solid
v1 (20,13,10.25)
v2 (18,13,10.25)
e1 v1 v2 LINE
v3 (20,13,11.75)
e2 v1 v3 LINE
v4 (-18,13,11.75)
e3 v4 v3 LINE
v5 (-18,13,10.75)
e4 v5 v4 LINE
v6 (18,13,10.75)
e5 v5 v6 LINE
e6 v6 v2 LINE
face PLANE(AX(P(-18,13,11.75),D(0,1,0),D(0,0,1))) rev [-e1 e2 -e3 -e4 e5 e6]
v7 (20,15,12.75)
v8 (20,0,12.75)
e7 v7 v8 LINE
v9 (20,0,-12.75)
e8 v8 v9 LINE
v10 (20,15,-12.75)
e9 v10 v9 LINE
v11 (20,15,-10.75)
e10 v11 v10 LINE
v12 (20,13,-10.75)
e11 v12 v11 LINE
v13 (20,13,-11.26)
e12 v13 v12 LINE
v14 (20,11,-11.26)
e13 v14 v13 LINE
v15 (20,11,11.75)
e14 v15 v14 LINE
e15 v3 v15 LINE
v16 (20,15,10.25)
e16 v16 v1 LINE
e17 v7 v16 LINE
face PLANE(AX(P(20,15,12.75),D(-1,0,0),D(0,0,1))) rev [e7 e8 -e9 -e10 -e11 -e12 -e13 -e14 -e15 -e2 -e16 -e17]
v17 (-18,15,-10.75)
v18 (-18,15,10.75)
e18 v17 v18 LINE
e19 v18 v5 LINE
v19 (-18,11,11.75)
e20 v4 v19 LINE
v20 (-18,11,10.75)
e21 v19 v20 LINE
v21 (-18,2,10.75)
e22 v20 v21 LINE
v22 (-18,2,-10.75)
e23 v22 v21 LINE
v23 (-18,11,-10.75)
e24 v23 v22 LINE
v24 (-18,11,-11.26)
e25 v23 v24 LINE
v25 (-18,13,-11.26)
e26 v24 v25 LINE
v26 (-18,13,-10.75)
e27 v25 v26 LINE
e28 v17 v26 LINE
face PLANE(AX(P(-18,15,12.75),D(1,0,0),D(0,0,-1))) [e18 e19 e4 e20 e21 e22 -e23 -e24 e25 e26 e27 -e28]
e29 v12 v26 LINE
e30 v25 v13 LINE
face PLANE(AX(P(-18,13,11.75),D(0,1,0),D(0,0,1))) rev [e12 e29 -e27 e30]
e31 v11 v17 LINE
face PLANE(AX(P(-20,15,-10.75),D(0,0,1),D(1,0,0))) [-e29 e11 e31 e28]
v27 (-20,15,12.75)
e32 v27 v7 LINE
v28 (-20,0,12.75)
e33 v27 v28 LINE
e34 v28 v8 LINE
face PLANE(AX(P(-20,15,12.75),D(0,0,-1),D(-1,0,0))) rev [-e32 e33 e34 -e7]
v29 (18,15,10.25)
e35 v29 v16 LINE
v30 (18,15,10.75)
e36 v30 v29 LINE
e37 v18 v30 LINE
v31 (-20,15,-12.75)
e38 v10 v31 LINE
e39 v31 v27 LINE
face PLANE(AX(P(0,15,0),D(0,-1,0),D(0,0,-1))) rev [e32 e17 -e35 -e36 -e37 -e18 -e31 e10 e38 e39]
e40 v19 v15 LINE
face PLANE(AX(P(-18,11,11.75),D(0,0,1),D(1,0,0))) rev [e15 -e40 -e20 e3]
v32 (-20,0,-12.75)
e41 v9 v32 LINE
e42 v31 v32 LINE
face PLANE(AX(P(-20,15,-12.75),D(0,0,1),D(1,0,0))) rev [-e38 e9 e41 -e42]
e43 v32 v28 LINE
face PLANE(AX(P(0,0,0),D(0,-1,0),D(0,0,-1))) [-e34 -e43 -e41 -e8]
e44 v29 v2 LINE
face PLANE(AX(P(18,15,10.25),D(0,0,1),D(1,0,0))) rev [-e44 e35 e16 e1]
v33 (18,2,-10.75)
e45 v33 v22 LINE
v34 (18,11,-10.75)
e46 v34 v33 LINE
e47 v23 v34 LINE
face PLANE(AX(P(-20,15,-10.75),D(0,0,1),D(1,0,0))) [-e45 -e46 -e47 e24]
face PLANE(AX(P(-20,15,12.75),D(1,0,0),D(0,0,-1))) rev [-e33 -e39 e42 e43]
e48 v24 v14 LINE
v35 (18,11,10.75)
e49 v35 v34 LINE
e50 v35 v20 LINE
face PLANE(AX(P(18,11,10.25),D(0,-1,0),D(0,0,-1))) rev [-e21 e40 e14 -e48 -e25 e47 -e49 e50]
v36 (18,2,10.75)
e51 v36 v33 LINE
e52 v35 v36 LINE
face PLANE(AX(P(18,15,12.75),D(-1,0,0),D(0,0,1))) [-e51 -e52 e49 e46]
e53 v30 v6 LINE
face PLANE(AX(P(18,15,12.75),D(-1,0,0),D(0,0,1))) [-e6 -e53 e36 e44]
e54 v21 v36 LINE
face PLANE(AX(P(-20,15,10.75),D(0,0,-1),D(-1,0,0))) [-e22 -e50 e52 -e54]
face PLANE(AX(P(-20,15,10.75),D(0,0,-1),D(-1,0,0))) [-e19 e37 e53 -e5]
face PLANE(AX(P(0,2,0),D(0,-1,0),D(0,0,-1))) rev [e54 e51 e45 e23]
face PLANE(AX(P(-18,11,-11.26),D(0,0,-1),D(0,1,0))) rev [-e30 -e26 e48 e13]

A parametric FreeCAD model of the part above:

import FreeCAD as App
import Part
import Sketcher
from FreeCAD import Vector
Q = App.Units.Quantity


def faces_at(feature, points):
    """Names of the faces that lie closest to the given points."""
    faces = feature.Shape.Faces
    near = lambda p: min(range(len(faces)), key=lambda i: faces[i].distToShape(Part.Vertex(*p))[0])
    return sorted({f"Face{near(p) + 1}" for p in points})

doc = App.newDocument("Part")
body = doc.addObject("PartDesign::Body", "Body")

sketch1 = body.newObject("Sketcher::SketchObject", "Sketch")
sketch1.AttachmentSupport = (doc.getObject("XZ_Plane"), [""])
sketch1.MapMode = "FlatFace"
sketch1.addGeometry([
    Part.LineSegment(Vector(-20, -13, 0), Vector(-20, 13, 0)),
    Part.LineSegment(Vector(-20, 13, 0), Vector(20, 13, 0)),
    Part.LineSegment(Vector(20, 13, 0), Vector(20, -13, 0)),
    Part.LineSegment(Vector(20, -13, 0), Vector(-20, -13, 0)),
], False)
sketch1.addConstraint([
    Sketcher.Constraint("Coincident", 0, 2, 1, 1),
    Sketcher.Constraint("Coincident", 1, 2, 2, 1),
    Sketcher.Constraint("Coincident", 2, 2, 3, 1),
    Sketcher.Constraint("Coincident", 3, 2, 0, 1),
    Sketcher.Constraint("Vertical", 0),
    Sketcher.Constraint("Horizontal", 1),
    Sketcher.Constraint("Vertical", 2),
    Sketcher.Constraint("Horizontal", 3),
    Sketcher.Constraint("Symmetric", 0, 2, 2, 2, -1, 1),
    Sketcher.Constraint("DistanceX", 1, 1, 1, 2, Q("40 mm")),
    Sketcher.Constraint("DistanceY", 0, 1, 0, 2, Q("25.5 mm")),
])
pad1 = body.newObject("PartDesign::Pad", "Pad")
pad1.Profile = sketch1
pad1.Length = 15
pad1.Reversed = True
doc.recompute()

thickness = body.newObject("PartDesign::Thickness", "Thickness")
thickness.Base = (pad1, faces_at(pad1, [(0, 15, 0)]))
thickness.Value = 2
thickness.Reversed = True
thickness.Join = "Intersection"

sketch2 = body.newObject("Sketcher::SketchObject", "Sketch001")
sketch2.AttachmentSupport = (doc.getObject("YZ_Plane"), [""])
sketch2.MapMode = "FlatFace"
sketch2.AttachmentOffset = App.Placement(Vector(0, 0, 20), App.Rotation())
sketch2.addGeometry([
    Part.LineSegment(Vector(15, 10.2, 0), Vector(11, 10.2, 0)),
    Part.LineSegment(Vector(11, 10.2, 0), Vector(11, -10.8, 0)),
    Part.LineSegment(Vector(11, -10.8, 0), Vector(15, -10.8, 0)),
    Part.LineSegment(Vector(15, -10.8, 0), Vector(15, 10.2, 0)),
], False)
sketch2.addConstraint([
    Sketcher.Constraint("Coincident", 0, 2, 1, 1),
    Sketcher.Constraint("Coincident", 1, 2, 2, 1),
    Sketcher.Constraint("Coincident", 2, 2, 3, 1),
    Sketcher.Constraint("Coincident", 3, 2, 0, 1),
    Sketcher.Constraint("Horizontal", 0),
    Sketcher.Constraint("Vertical", 1),
    Sketcher.Constraint("Horizontal", 2),
    Sketcher.Constraint("Vertical", 3),
    Sketcher.Constraint("DistanceX", 0, 2, 0, 1, Q("4 mm")),
    Sketcher.Constraint("DistanceY", 1, 2, 1, 1, Q("21 mm")),
    Sketcher.Constraint("DistanceX", -1, 1, 0, 2, Q("11 mm")),
    Sketcher.Constraint("DistanceY", -1, 1, 0, 2, Q("10.25 mm")),
])
pocket1 = body.newObject("PartDesign::Pocket", "Pocket")
pocket1.Profile = sketch2
pocket1.Length = 2

sketch3 = body.newObject("Sketcher::SketchObject", "Sketch002")
sketch3.AttachmentSupport = (doc.getObject("YZ_Plane"), [""])
sketch3.MapMode = "FlatFace"
sketch3.AttachmentOffset = App.Placement(Vector(0, 0, 20), App.Rotation())
sketch3.addGeometry([
    Part.LineSegment(Vector(13, 11.8, 0), Vector(11, 11.8, 0)),
    Part.LineSegment(Vector(11, 11.8, 0), Vector(11, -11.3, 0)),
    Part.LineSegment(Vector(11, -11.3, 0), Vector(13, -11.3, 0)),
    Part.LineSegment(Vector(13, -11.3, 0), Vector(13, 11.8, 0)),
], False)
sketch3.addConstraint([
    Sketcher.Constraint("Coincident", 0, 2, 1, 1),
    Sketcher.Constraint("Coincident", 1, 2, 2, 1),
    Sketcher.Constraint("Coincident", 2, 2, 3, 1),
    Sketcher.Constraint("Coincident", 3, 2, 0, 1),
    Sketcher.Constraint("Horizontal", 0),
    Sketcher.Constraint("Vertical", 1),
    Sketcher.Constraint("Horizontal", 2),
    Sketcher.Constraint("Vertical", 3),
    Sketcher.Constraint("DistanceX", 0, 2, 0, 1, Q("2 mm")),
    Sketcher.Constraint("DistanceX", -1, 1, 0, 2, Q("11 mm")),
    Sketcher.Constraint("DistanceY", 1, 2, 1, 1, Q("23.01 mm")),
    Sketcher.Constraint("DistanceY", -1, 1, 0, 2, Q("11.75 mm")),
])
pocket2 = body.newObject("PartDesign::Pocket", "Pocket001")
pocket2.Profile = sketch3
pocket2.Length = 38

doc.recompute()
